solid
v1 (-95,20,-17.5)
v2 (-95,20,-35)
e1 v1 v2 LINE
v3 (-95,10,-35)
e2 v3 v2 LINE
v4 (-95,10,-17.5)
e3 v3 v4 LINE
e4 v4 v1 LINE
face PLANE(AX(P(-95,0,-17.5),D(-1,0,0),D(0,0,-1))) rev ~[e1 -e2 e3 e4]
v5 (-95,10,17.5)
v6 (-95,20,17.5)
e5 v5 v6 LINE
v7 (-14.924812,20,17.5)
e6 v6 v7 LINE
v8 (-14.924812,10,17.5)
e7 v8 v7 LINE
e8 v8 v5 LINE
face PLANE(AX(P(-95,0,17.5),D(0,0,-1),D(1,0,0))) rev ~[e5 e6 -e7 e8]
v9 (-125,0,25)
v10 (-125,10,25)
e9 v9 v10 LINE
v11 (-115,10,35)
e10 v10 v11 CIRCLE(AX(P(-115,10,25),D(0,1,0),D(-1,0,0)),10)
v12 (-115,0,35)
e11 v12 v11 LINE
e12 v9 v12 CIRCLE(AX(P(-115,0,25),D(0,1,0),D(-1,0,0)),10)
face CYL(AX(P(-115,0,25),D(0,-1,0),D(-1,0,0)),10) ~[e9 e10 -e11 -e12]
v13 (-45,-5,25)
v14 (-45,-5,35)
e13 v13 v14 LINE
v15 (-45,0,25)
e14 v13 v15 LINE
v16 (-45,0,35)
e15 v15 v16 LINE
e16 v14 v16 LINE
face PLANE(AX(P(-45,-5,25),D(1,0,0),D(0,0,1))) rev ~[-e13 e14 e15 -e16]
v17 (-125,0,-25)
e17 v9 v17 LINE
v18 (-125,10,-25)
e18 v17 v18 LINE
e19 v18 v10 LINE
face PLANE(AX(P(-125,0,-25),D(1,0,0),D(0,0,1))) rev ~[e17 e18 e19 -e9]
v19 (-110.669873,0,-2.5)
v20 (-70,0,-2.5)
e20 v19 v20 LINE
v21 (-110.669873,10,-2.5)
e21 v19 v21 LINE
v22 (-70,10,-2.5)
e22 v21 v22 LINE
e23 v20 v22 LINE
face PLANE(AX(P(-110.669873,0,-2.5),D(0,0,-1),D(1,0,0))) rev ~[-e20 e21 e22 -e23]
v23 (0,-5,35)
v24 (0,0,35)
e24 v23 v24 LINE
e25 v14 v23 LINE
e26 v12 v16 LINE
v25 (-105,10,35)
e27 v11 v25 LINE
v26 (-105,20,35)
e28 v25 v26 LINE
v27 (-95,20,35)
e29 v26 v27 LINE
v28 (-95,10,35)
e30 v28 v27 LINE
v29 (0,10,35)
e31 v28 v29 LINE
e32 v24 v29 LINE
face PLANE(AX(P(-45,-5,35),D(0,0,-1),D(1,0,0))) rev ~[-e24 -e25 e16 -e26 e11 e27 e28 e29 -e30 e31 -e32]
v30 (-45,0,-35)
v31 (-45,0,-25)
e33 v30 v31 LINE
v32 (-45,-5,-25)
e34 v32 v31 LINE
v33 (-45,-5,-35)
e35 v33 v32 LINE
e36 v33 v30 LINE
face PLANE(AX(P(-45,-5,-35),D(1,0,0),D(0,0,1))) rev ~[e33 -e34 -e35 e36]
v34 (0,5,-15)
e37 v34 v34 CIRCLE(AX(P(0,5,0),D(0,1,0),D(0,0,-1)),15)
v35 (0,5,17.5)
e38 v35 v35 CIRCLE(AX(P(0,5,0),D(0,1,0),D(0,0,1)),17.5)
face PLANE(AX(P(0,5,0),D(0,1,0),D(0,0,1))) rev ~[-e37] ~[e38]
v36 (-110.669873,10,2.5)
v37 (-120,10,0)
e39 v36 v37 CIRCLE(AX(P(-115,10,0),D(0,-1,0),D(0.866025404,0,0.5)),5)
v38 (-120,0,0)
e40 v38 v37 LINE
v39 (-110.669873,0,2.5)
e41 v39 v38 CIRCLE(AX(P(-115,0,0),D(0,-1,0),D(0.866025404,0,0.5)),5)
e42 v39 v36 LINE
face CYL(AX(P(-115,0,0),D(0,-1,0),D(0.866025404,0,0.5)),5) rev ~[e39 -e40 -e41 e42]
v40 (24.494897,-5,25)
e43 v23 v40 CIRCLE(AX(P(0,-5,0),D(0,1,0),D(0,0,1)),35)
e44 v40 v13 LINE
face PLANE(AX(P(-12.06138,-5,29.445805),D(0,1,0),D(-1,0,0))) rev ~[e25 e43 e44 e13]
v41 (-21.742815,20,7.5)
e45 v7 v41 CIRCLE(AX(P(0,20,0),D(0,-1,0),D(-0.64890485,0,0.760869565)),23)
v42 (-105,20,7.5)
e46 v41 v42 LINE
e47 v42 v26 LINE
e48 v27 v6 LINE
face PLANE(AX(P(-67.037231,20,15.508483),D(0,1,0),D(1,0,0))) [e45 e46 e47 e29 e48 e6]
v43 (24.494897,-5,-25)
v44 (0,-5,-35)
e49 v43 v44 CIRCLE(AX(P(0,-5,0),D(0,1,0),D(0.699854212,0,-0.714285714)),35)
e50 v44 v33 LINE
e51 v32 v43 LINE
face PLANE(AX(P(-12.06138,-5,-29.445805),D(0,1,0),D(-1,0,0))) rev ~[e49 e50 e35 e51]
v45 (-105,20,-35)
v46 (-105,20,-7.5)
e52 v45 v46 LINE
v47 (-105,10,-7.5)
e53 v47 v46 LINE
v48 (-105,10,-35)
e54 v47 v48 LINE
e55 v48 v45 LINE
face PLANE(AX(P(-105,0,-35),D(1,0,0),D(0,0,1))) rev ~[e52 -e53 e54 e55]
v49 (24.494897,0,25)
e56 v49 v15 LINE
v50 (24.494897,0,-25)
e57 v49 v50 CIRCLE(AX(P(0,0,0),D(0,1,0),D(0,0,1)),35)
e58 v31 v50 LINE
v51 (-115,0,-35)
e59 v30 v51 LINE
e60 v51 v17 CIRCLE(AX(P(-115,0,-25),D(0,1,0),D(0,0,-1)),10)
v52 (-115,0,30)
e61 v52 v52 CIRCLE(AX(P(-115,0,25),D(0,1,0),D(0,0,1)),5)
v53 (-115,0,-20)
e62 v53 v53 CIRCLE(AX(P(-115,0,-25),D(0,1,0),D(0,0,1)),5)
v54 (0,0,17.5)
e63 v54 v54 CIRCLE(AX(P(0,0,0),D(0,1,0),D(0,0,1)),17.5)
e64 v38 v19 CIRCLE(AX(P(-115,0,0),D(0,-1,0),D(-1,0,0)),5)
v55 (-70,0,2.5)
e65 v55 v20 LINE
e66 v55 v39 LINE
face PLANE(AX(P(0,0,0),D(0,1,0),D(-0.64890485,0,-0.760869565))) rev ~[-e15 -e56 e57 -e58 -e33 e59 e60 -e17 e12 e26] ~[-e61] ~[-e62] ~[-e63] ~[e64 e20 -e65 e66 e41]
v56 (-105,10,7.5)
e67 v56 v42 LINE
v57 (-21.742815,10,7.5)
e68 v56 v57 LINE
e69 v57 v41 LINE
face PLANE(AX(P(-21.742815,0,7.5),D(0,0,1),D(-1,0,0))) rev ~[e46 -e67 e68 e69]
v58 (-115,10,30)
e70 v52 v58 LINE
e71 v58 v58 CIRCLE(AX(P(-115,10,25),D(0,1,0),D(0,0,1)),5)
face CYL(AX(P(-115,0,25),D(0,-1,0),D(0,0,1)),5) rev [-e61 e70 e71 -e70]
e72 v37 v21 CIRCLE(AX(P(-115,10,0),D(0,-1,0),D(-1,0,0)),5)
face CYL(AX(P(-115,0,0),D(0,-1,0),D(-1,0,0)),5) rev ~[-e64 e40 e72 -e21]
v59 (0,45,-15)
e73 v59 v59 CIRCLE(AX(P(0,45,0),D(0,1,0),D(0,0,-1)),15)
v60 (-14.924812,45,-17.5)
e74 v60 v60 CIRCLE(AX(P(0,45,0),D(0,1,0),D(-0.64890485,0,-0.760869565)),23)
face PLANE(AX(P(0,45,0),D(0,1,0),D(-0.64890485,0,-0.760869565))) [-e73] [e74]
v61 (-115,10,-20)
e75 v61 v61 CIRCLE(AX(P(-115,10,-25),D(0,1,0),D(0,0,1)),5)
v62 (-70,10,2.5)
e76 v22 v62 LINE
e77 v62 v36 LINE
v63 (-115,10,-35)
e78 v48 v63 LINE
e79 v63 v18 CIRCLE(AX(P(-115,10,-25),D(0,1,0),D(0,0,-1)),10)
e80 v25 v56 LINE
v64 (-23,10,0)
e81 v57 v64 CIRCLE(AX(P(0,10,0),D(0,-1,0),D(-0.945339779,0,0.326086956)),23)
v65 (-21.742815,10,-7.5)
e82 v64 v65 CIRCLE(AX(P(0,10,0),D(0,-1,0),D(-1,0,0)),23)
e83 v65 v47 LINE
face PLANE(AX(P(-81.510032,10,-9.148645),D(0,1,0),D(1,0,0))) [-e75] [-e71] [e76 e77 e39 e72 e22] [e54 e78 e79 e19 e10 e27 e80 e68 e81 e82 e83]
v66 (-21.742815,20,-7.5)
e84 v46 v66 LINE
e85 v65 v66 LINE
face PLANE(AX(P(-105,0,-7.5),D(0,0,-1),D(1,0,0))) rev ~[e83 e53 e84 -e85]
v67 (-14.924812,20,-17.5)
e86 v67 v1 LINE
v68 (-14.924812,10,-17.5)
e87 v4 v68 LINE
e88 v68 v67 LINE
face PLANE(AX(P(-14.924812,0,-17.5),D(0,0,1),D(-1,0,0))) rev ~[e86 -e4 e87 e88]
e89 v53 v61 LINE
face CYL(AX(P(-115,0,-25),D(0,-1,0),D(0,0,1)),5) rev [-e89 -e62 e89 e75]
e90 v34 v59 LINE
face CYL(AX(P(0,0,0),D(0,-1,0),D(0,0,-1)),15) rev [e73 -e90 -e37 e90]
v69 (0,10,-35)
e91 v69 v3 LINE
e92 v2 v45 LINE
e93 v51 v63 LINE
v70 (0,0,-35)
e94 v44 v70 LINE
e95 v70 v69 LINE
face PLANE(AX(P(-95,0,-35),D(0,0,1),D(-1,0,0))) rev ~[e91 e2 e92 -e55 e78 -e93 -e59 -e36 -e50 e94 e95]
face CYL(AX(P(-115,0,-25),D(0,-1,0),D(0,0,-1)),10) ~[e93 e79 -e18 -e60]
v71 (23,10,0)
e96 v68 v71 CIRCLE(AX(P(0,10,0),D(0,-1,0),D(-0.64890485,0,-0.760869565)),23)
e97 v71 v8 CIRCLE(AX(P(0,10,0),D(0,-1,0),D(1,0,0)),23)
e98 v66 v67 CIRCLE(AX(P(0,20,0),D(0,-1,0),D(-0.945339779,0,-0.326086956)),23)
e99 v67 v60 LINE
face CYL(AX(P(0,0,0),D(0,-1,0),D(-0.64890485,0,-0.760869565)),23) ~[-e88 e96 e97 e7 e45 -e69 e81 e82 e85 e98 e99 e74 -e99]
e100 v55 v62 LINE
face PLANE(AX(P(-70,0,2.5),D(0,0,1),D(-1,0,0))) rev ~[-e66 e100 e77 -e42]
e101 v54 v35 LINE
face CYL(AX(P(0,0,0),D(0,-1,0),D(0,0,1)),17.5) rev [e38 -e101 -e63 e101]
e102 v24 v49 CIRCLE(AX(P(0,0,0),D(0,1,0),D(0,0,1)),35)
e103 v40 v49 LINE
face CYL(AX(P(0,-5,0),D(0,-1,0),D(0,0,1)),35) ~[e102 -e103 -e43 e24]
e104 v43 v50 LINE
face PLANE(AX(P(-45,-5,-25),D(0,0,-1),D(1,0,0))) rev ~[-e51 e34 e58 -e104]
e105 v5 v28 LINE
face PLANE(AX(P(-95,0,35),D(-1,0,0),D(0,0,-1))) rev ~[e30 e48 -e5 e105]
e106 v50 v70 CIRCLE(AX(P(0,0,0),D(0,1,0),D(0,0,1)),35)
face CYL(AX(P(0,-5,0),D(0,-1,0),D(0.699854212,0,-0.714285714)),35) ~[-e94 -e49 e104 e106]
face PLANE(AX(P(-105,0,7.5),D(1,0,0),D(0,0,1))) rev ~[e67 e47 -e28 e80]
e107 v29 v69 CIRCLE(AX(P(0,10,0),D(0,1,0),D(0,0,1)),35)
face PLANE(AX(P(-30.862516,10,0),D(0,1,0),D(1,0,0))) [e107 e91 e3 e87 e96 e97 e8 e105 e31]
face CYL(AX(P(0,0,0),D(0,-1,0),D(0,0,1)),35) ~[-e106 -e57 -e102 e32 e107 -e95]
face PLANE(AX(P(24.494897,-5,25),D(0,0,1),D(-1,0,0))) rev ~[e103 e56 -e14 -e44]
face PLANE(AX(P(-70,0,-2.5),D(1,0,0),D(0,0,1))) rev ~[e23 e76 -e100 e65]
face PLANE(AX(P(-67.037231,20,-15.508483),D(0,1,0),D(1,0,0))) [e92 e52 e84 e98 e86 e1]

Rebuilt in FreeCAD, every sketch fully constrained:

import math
import FreeCAD as App
import Part
import Sketcher

V = App.Vector

doc = App.newDocument("Part")
body = doc.addObject("PartDesign::Body", "Body")
body.AllowCompound = True

# Sketch on XZ plane
sketch1 = doc.addObject("Sketcher::SketchObject", "Sketch")
body.addObject(sketch1)
sketch1.AttachmentSupport = (doc.XZ_Plane, [""])
sketch1.MapMode = "FlatFace"
sketch1.addGeometry(Part.ArcOfCircle(Part.Circle(V(0, 0, 0), V(0, 0, 1), 35), math.radians(-90), math.radians(90)), False)
sketch1.addGeometry(Part.LineSegment(V(0, -35, 0), V(-95, -35, 0)), False)
sketch1.addGeometry(Part.LineSegment(V(-95, -35, 0), V(-95, -18, 0)), False)
sketch1.addGeometry(Part.LineSegment(V(-95, -18, 0), V(-15, -18, 0)), False)
sketch1.addGeometry(Part.ArcOfCircle(Part.Circle(V(0, 0, 0), V(0, 0, 1), 23), math.radians(-130), math.radians(0)), False)
sketch1.addGeometry(Part.ArcOfCircle(Part.Circle(V(0, 0, 0), V(0, 0, 1), 23), math.radians(0), math.radians(130)), False)
sketch1.addGeometry(Part.LineSegment(V(-15, 18, 0), V(-95, 18, 0)), False)
sketch1.addGeometry(Part.LineSegment(V(-95, 18, 0), V(-95, 35, 0)), False)
sketch1.addGeometry(Part.LineSegment(V(-95, 35, 0), V(0, 35, 0)), False)
sketch1.addGeometry(Part.LineSegment(V(-115, 35, 0), V(-105, 35, 0)), False)
sketch1.addGeometry(Part.LineSegment(V(-105, 35, 0), V(-105, 8, 0)), False)
sketch1.addGeometry(Part.LineSegment(V(-105, 8, 0), V(-22, 8, 0)), False)
sketch1.addGeometry(Part.ArcOfCircle(Part.Circle(V(0, 0, 0), V(0, 0, 1), 23), math.radians(160.97), math.radians(180)), False)
sketch1.addGeometry(Part.ArcOfCircle(Part.Circle(V(0, 0, 0), V(0, 0, 1), 23), math.radians(-180), math.radians(-160.97)), False)
sketch1.addGeometry(Part.LineSegment(V(-22, -8, 0), V(-105, -8, 0)), False)
sketch1.addGeometry(Part.LineSegment(V(-105, -8, 0), V(-105, -35, 0)), False)
sketch1.addGeometry(Part.LineSegment(V(-105, -35, 0), V(-115, -35, 0)), False)
sketch1.addGeometry(Part.ArcOfCircle(Part.Circle(V(-115, -25, 0), V(0, 0, 1), 10), math.radians(180), math.radians(270)), False)
sketch1.addGeometry(Part.LineSegment(V(-125, -25, 0), V(-125, 25, 0)), False)
sketch1.addGeometry(Part.ArcOfCircle(Part.Circle(V(-115, 25, 0), V(0, 0, 1), 10), math.radians(90), math.radians(180)), False)
sketch1.addGeometry(Part.ArcOfCircle(Part.Circle(V(-115, 0, 0), V(0, 0, 1), 5), math.radians(30), math.radians(180)), False)
sketch1.addGeometry(Part.ArcOfCircle(Part.Circle(V(-115, 0, 0), V(0, 0, 1), 5), math.radians(180), math.radians(330)), False)
sketch1.addGeometry(Part.LineSegment(V(-111, -2, 0), V(-70, -2, 0)), False)
sketch1.addGeometry(Part.LineSegment(V(-70, -2, 0), V(-70, 2, 0)), False)
sketch1.addGeometry(Part.LineSegment(V(-70, 2, 0), V(-111, 2, 0)), False)
sketch1.addGeometry(Part.Circle(V(-115, 25, 0), V(0, 0, 1), 5), False)
sketch1.addGeometry(Part.Circle(V(-115, -25, 0), V(0, 0, 1), 5), False)
sketch1.addConstraint(Sketcher.Constraint("Tangent", 0, 1, 1, 1))
sketch1.addConstraint(Sketcher.Constraint("Coincident", 1, 2, 2, 1))
sketch1.addConstraint(Sketcher.Constraint("Coincident", 2, 2, 3, 1))
sketch1.addConstraint(Sketcher.Constraint("Coincident", 3, 2, 4, 1))
sketch1.addConstraint(Sketcher.Constraint("Tangent", 4, 2, 5, 1))
sketch1.addConstraint(Sketcher.Constraint("Coincident", 5, 2, 6, 1))
sketch1.addConstraint(Sketcher.Constraint("Coincident", 6, 2, 7, 1))
sketch1.addConstraint(Sketcher.Constraint("Coincident", 7, 2, 8, 1))
sketch1.addConstraint(Sketcher.Constraint("Tangent", 8, 2, 0, 2))
sketch1.addConstraint(Sketcher.Constraint("Coincident", 9, 2, 10, 1))
sketch1.addConstraint(Sketcher.Constraint("Coincident", 10, 2, 11, 1))
sketch1.addConstraint(Sketcher.Constraint("Coincident", 11, 2, 12, 1))
sketch1.addConstraint(Sketcher.Constraint("Tangent", 12, 2, 13, 1))
sketch1.addConstraint(Sketcher.Constraint("Coincident", 13, 2, 14, 1))
sketch1.addConstraint(Sketcher.Constraint("Coincident", 14, 2, 15, 1))
sketch1.addConstraint(Sketcher.Constraint("Coincident", 15, 2, 16, 1))
sketch1.addConstraint(Sketcher.Constraint("Tangent", 16, 2, 17, 2))
sketch1.addConstraint(Sketcher.Constraint("Tangent", 17, 1, 18, 1))
sketch1.addConstraint(Sketcher.Constraint("Tangent", 18, 2, 19, 2))
sketch1.addConstraint(Sketcher.Constraint("Tangent", 19, 1, 9, 1))
sketch1.addConstraint(Sketcher.Constraint("Tangent", 20, 2, 21, 1))
sketch1.addConstraint(Sketcher.Constraint("Coincident", 21, 2, 22, 1))
sketch1.addConstraint(Sketcher.Constraint("Coincident", 22, 2, 23, 1))
sketch1.addConstraint(Sketcher.Constraint("Coincident", 23, 2, 24, 1))
sketch1.addConstraint(Sketcher.Constraint("Coincident", 24, 2, 20, 1))
sketch1.addConstraint(Sketcher.Constraint("Horizontal", 1))
sketch1.addConstraint(Sketcher.Constraint("Vertical", 2))
sketch1.addConstraint(Sketcher.Constraint("Horizontal", 3))
sketch1.addConstraint(Sketcher.Constraint("Horizontal", 6))
sketch1.addConstraint(Sketcher.Constraint("Vertical", 7))
sketch1.addConstraint(Sketcher.Constraint("Horizontal", 8))
sketch1.addConstraint(Sketcher.Constraint("Horizontal", 9))
sketch1.addConstraint(Sketcher.Constraint("Vertical", 10))
sketch1.addConstraint(Sketcher.Constraint("Horizontal", 11))
sketch1.addConstraint(Sketcher.Constraint("Horizontal", 14))
sketch1.addConstraint(Sketcher.Constraint("Vertical", 15))
sketch1.addConstraint(Sketcher.Constraint("Horizontal", 16))
sketch1.addConstraint(Sketcher.Constraint("Vertical", 18))
sketch1.addConstraint(Sketcher.Constraint("Horizontal", 22))
sketch1.addConstraint(Sketcher.Constraint("Vertical", 23))
sketch1.addConstraint(Sketcher.Constraint("Horizontal", 24))
sketch1.addConstraint(Sketcher.Constraint("Coincident", 0, 3, -1, 1))
sketch1.addConstraint(Sketcher.Constraint("Coincident", 4, 3, -1, 1))
sketch1.addConstraint(Sketcher.Constraint("Coincident", 12, 3, -1, 1))
sketch1.addConstraint(Sketcher.Constraint("Coincident", 25, 3, 19, 3))
sketch1.addConstraint(Sketcher.Constraint("Coincident", 26, 3, 17, 3))
sketch1.addConstraint(Sketcher.Constraint("Equal", 4, 5))
sketch1.addConstraint(Sketcher.Constraint("Equal", 5, 12))
sketch1.addConstraint(Sketcher.Constraint("Equal", 12, 13))
sketch1.addConstraint(Sketcher.Constraint("Equal", 17, 19))
sketch1.addConstraint(Sketcher.Constraint("Equal", 20, 21))
sketch1.addConstraint(Sketcher.Constraint("Equal", 21, 25))
sketch1.addConstraint(Sketcher.Constraint("Equal", 25, 26))
sketch1.addConstraint(Sketcher.Constraint("Symmetric", 2, 2, 6, 2, -1))
sketch1.addConstraint(Sketcher.Constraint("Symmetric", 10, 2, 14, 2, -1))
sketch1.addConstraint(Sketcher.Constraint("Symmetric", 21, 2, 24, 2, -1))
sketch1.addConstraint(Sketcher.Constraint("PointOnObject", 4, 2, -1))
sketch1.addConstraint(Sketcher.Constraint("PointOnObject", 12, 2, -1))
sketch1.addConstraint(Sketcher.Constraint("PointOnObject", 20, 2, -1))
sketch1.addConstraint(Sketcher.Constraint("Horizontal", 8, 2, 9, 2))
sketch1.addConstraint(Sketcher.Constraint("Horizontal", 1, 2, 15, 2))
sketch1.addConstraint(Sketcher.Constraint("Vertical", 19, 3, 20, 3))
sketch1.addConstraint(Sketcher.Constraint("Diameter", 25, 10.0))
sketch1.addConstraint(Sketcher.Constraint("Radius", 0, 35.0))
sketch1.addConstraint(Sketcher.Constraint("Radius", 4, 23.0))
sketch1.addConstraint(Sketcher.Constraint("Radius", 17, 10.0))
sketch1.addConstraint(Sketcher.Constraint("DistanceX", 1, 2, 1, 1, 95.0))
sketch1.addConstraint(Sketcher.Constraint("DistanceX", 9, 1, 9, 2, 10.0))
sketch1.addConstraint(Sketcher.Constraint("DistanceY", 23, 1, 23, 2, 5.0))
sketch1.addConstraint(Sketcher.Constraint("DistanceY", 2, 1, 2, 2, 17.5))
sketch1.addConstraint(Sketcher.Constraint("DistanceY", 10, 2, 10, 1, 27.5))
sketch1.addConstraint(Sketcher.Constraint("DistanceX", 17, 3, -1, 1, 115.0))
sketch1.addConstraint(Sketcher.Constraint("DistanceX", 22, 2, -1, 1, 70.0))
pad1 = doc.addObject("PartDesign::Pad", "Pad")
body.addObject(pad1)
pad1.Profile = sketch1
pad1.Length = 10
pad1.Reversed = True

# Sketch on XZ plane
sketch2 = doc.addObject("Sketcher::SketchObject", "Sketch001")
body.addObject(sketch2)
sketch2.AttachmentSupport = (doc.XZ_Plane, [""])
sketch2.MapMode = "FlatFace"
sketch2.addGeometry(Part.LineSegment(V(-95, -18, 0), V(-95, -35, 0)), False)
sketch2.addGeometry(Part.LineSegment(V(-95, -35, 0), V(-105, -35, 0)), False)
sketch2.addGeometry(Part.LineSegment(V(-105, -35, 0), V(-105, -8, 0)), False)
sketch2.addGeometry(Part.LineSegment(V(-105, -8, 0), V(-22, -8, 0)), False)
sketch2.addGeometry(Part.ArcOfCircle(Part.Circle(V(0, 0, 0), V(0, 0, 1), 23), math.radians(-161), math.radians(-130)), False)
sketch2.addGeometry(Part.LineSegment(V(-15, -18, 0), V(-95, -18, 0)), False)
sketch2.addGeometry(Part.LineSegment(V(-105, 35, 0), V(-95, 35, 0)), False)
sketch2.addGeometry(Part.LineSegment(V(-95, 35, 0), V(-95, 18, 0)), False)
sketch2.addGeometry(Part.LineSegment(V(-95, 18, 0), V(-15, 18, 0)), False)
sketch2.addGeometry(Part.ArcOfCircle(Part.Circle(V(0, 0, 0), V(0, 0, 1), 23), math.radians(130), math.radians(161)), False)
sketch2.addGeometry(Part.LineSegment(V(-22, 8, 0), V(-105, 8, 0)), False)
sketch2.addGeometry(Part.LineSegment(V(-105, 8, 0), V(-105, 35, 0)), False)
sketch2.addConstraint(Sketcher.Constraint("Coincident", 0, 2, 1, 1))
sketch2.addConstraint(Sketcher.Constraint("Coincident", 1, 2, 2, 1))
sketch2.addConstraint(Sketcher.Constraint("Coincident", 2, 2, 3, 1))
sketch2.addConstraint(Sketcher.Constraint("Coincident", 3, 2, 4, 1))
sketch2.addConstraint(Sketcher.Constraint("Coincident", 4, 2, 5, 1))
sketch2.addConstraint(Sketcher.Constraint("Coincident", 5, 2, 0, 1))
sketch2.addConstraint(Sketcher.Constraint("Coincident", 6, 2, 7, 1))
sketch2.addConstraint(Sketcher.Constraint("Coincident", 7, 2, 8, 1))
sketch2.addConstraint(Sketcher.Constraint("Coincident", 8, 2, 9, 1))
sketch2.addConstraint(Sketcher.Constraint("Coincident", 9, 2, 10, 1))
sketch2.addConstraint(Sketcher.Constraint("Coincident", 10, 2, 11, 1))
sketch2.addConstraint(Sketcher.Constraint("Coincident", 11, 2, 6, 1))
sketch2.addConstraint(Sketcher.Constraint("Vertical", 0))
sketch2.addConstraint(Sketcher.Constraint("Horizontal", 1))
sketch2.addConstraint(Sketcher.Constraint("Vertical", 2))
sketch2.addConstraint(Sketcher.Constraint("Horizontal", 3))
sketch2.addConstraint(Sketcher.Constraint("Horizontal", 5))
sketch2.addConstraint(Sketcher.Constraint("Horizontal", 6))
sketch2.addConstraint(Sketcher.Constraint("Vertical", 7))
sketch2.addConstraint(Sketcher.Constraint("Horizontal", 8))
sketch2.addConstraint(Sketcher.Constraint("Horizontal", 10))
sketch2.addConstraint(Sketcher.Constraint("Vertical", 11))
sketch2.addConstraint(Sketcher.Constraint("Coincident", 4, 3, -1, 1))
sketch2.addConstraint(Sketcher.Constraint("Coincident", 9, 3, -1, 1))
sketch2.addConstraint(Sketcher.Constraint("Equal", 4, 9))
sketch2.addConstraint(Sketcher.Constraint("Symmetric", 0, 2, 6, 2, -1))
sketch2.addConstraint(Sketcher.Constraint("Symmetric", 2, 2, 10, 2, -1))
sketch2.addConstraint(Sketcher.Constraint("Vertical", 4, 2, 8, 2))
sketch2.addConstraint(Sketcher.Constraint("Radius", 4, 23.0))
sketch2.addConstraint(Sketcher.Constraint("DistanceX", 1, 2, 1, 1, 10.0))
sketch2.addConstraint(Sketcher.Constraint("DistanceY", 0, 2, 0, 1, 17.5))
sketch2.addConstraint(Sketcher.Constraint("DistanceY", 2, 1, 2, 2, 27.5))
sketch2.addConstraint(Sketcher.Constraint("DistanceX", 0, 2, -1, 1, 95.0))
sketch2.addConstraint(Sketcher.Constraint("DistanceY", 0, 2, -1, 1, 35.0))
pad2 = doc.addObject("PartDesign::Pad", "Pad001")
body.addObject(pad2)
pad2.Profile = sketch2
pad2.Length = 20
pad2.Reversed = True

# Sketch on XZ plane
sketch3 = doc.addObject("Sketcher::SketchObject", "Sketch002")
body.addObject(sketch3)
sketch3.AttachmentSupport = (doc.XZ_Plane, [""])
sketch3.MapMode = "FlatFace"
sketch3.addGeometry(Part.Circle(V(0, 0, 0), V(0, 0, 1), 23), False)
sketch3.addGeometry(Part.Circle(V(0, 0, 0), V(0, 0, 1), 15), False)
sketch3.addConstraint(Sketcher.Constraint("Coincident", 0, 3, -1, 1))
sketch3.addConstraint(Sketcher.Constraint("Coincident", 1, 3, -1, 1))
sketch3.addConstraint(Sketcher.Constraint("Diameter", 0, 46.0))
sketch3.addConstraint(Sketcher.Constraint("Diameter", 1, 30.0))
pad3 = doc.addObject("PartDesign::Pad", "Pad002")
body.addObject(pad3)
pad3.Profile = sketch3
pad3.Length = 45
pad3.Reversed = True

# Sketch on XZ plane
sketch4 = doc.addObject("Sketcher::SketchObject", "Sketch003")
body.addObject(sketch4)
sketch4.AttachmentSupport = (doc.XZ_Plane, [""])
sketch4.MapMode = "FlatFace"
sketch4.addGeometry(Part.Circle(V(0, 0, 0), V(0, 0, 1), 18), False)
sketch4.addGeometry(Part.Circle(V(0, 0, 0), V(0, 0, 1), 15), False)
sketch4.addConstraint(Sketcher.Constraint("Coincident", 0, 3, -1, 1))
sketch4.addConstraint(Sketcher.Constraint("Coincident", 1, 3, -1, 1))
sketch4.addConstraint(Sketcher.Constraint("Diameter", 0, 35.0))
sketch4.addConstraint(Sketcher.Constraint("Diameter", 1, 30.0))
pocket1 = doc.addObject("PartDesign::Pocket", "Pocket")
body.addObject(pocket1)
pocket1.Profile = sketch4
pocket1.Length = 5

# Sketch on XZ plane
sketch5 = doc.addObject("Sketcher::SketchObject", "Sketch004")
body.addObject(sketch5)
sketch5.AttachmentSupport = (doc.XZ_Plane, [""])
sketch5.MapMode = "FlatFace"
sketch5.AttachmentOffset = App.Placement(V(0, 0, 5), App.Rotation())
sketch5.addGeometry(Part.LineSegment(V(0, 35, 0), V(-45, 35, 0)), False)
sketch5.addGeometry(Part.LineSegment(V(-45, 35, 0), V(-45, 25, 0)), False)
sketch5.addGeometry(Part.LineSegment(V(-45, 25, 0), V(24, 25, 0)), False)
sketch5.addGeometry(Part.ArcOfCircle(Part.Circle(V(0, 0, 0), V(0, 0, 1), 35), math.radians(46), math.radians(90)), False)
sketch5.addGeometry(Part.LineSegment(V(24, -25, 0), V(-45, -25, 0)), False)
sketch5.addGeometry(Part.LineSegment(V(-45, -25, 0), V(-45, -35, 0)), False)
sketch5.addGeometry(Part.LineSegment(V(-45, -35, 0), V(0, -35, 0)), False)
sketch5.addGeometry(Part.ArcOfCircle(Part.Circle(V(0, 0, 0), V(0, 0, 1), 35), math.radians(-90), math.radians(-46)), False)
sketch5.addConstraint(Sketcher.Constraint("Coincident", 0, 2, 1, 1))
sketch5.addConstraint(Sketcher.Constraint("Coincident", 1, 2, 2, 1))
sketch5.addConstraint(Sketcher.Constraint("Coincident", 2, 2, 3, 1))
sketch5.addConstraint(Sketcher.Constraint("Tangent", 3, 2, 0, 1))
sketch5.addConstraint(Sketcher.Constraint("Coincident", 4, 2, 5, 1))
sketch5.addConstraint(Sketcher.Constraint("Coincident", 5, 2, 6, 1))
sketch5.addConstraint(Sketcher.Constraint("Tangent", 6, 2, 7, 1))
sketch5.addConstraint(Sketcher.Constraint("Coincident", 7, 2, 4, 1))
sketch5.addConstraint(Sketcher.Constraint("Horizontal", 0))
sketch5.addConstraint(Sketcher.Constraint("Vertical", 1))
sketch5.addConstraint(Sketcher.Constraint("Horizontal", 2))
sketch5.addConstraint(Sketcher.Constraint("Horizontal", 4))
sketch5.addConstraint(Sketcher.Constraint("Vertical", 5))
sketch5.addConstraint(Sketcher.Constraint("Horizontal", 6))
sketch5.addConstraint(Sketcher.Constraint("Coincident", 3, 3, -1, 1))
sketch5.addConstraint(Sketcher.Constraint("Coincident", 7, 3, -1, 1))
sketch5.addConstraint(Sketcher.Constraint("Equal", 3, 7))
sketch5.addConstraint(Sketcher.Constraint("Symmetric", 1, 2, 4, 2, -1))
sketch5.addConstraint(Sketcher.Constraint("Radius", 3, 35.0))
sketch5.addConstraint(Sketcher.Constraint("DistanceX", 0, 2, 0, 1, 45.0))
sketch5.addConstraint(Sketcher.Constraint("DistanceY", 1, 2, 1, 1, 10.0))
pad4 = doc.addObject("PartDesign::Pad", "Pad003")
body.addObject(pad4)
pad4.Profile = sketch5
pad4.Length = 5
pad4.Reversed = True

doc.recompute()
